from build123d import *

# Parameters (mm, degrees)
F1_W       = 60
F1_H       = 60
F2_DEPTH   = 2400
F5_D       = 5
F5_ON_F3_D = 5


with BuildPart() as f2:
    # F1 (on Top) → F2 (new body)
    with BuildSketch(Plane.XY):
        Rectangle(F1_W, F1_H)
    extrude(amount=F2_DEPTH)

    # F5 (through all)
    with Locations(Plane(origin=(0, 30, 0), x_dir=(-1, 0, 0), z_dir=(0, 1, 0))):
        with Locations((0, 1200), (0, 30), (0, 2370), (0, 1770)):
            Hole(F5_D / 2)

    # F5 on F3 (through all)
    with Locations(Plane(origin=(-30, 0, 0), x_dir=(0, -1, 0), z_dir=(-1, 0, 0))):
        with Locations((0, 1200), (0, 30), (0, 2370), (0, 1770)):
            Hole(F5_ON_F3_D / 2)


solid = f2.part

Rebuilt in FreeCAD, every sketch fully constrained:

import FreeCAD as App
import Part
import Sketcher

V = App.Vector


def add_polygon(sketch, points):
    """Adds a closed chain of lines whose ends are joined by coincident constraints."""
    first, n = sketch.GeometryCount, len(points)
    for a, b in zip(points, points[1:] + points[:1]):
        sketch.addGeometry(Part.LineSegment(App.Vector(*a, 0), App.Vector(*b, 0)), False)
    for i in range(n):
        sketch.addConstraint(Sketcher.Constraint("Coincident", first + i, 2, first + (i + 1) % n, 1))

doc = App.newDocument("Part")
body = doc.addObject("PartDesign::Body", "Body")

sketch1 = doc.addObject("Sketcher::SketchObject", "Sketch")
body.addObject(sketch1)
sketch1.AttachmentSupport = (doc.XY_Plane, [""])
sketch1.MapMode = "FlatFace"
add_polygon(sketch1, [(-30, 30), (-30, -30), (30, -30), (30, 30)])
sketch1.addConstraint(Sketcher.Constraint("Vertical", 0))
sketch1.addConstraint(Sketcher.Constraint("Horizontal", 1))
sketch1.addConstraint(Sketcher.Constraint("Vertical", 2))
sketch1.addConstraint(Sketcher.Constraint("Horizontal", 3))
sketch1.addConstraint(Sketcher.Constraint("Symmetric", 0, 2, 2, 2, -1, 1))
sketch1.addConstraint(Sketcher.Constraint("Equal", 3, 0))
sketch1.addConstraint(Sketcher.Constraint("DistanceX", 1, 1, 1, 2, 60.0))
pad1 = doc.addObject("PartDesign::Pad", "Pad")
body.addObject(pad1)
pad1.Profile = sketch1
pad1.Length = 2400

sketch2 = doc.addObject("Sketcher::SketchObject", "Sketch001")
body.addObject(sketch2)
sketch2.AttachmentSupport = (doc.XZ_Plane, [""])
sketch2.MapMode = "FlatFace"
sketch2.AttachmentOffset = App.Placement(V(0, 0, -30), App.Rotation())
sketch2.addGeometry(Part.Circle(V(0, 1200, 0), V(0, 0, 1), 2.5), False)
sketch2.addGeometry(Part.Circle(V(0, 30, 0), V(0, 0, 1), 2.5), False)
sketch2.addGeometry(Part.Circle(V(0, 2370, 0), V(0, 0, 1), 2.5), False)
sketch2.addGeometry(Part.Circle(V(0, 1770, 0), V(0, 0, 1), 2.5), False)
sketch2.addConstraint(Sketcher.Constraint("Equal", 0, 1))
sketch2.addConstraint(Sketcher.Constraint("Equal", 1, 2))
sketch2.addConstraint(Sketcher.Constraint("Equal", 2, 3))
sketch2.addConstraint(Sketcher.Constraint("PointOnObject", 0, 3, -2))
sketch2.addConstraint(Sketcher.Constraint("PointOnObject", 1, 3, -2))
sketch2.addConstraint(Sketcher.Constraint("PointOnObject", 2, 3, -2))
sketch2.addConstraint(Sketcher.Constraint("PointOnObject", 3, 3, -2))
sketch2.addConstraint(Sketcher.Constraint("Diameter", 0, 5.0))
sketch2.addConstraint(Sketcher.Constraint("DistanceY", -1, 1, 0, 3, 1200.0))
sketch2.addConstraint(Sketcher.Constraint("DistanceY", -1, 1, 1, 3, 30.0))
sketch2.addConstraint(Sketcher.Constraint("DistanceY", -1, 1, 2, 3, 2370.0))
sketch2.addConstraint(Sketcher.Constraint("DistanceY", -1, 1, 3, 3, 1770.0))
doc.recompute()
hole = doc.addObject("PartDesign::Hole", "Hole")
body.addObject(hole)
hole.Profile = sketch2
hole.ThreadType = "None"
hole.Diameter = 5
hole.DepthType = "ThroughAll"
hole.Reversed = True

sketch3 = doc.addObject("Sketcher::SketchObject", "Sketch002")
body.addObject(sketch3)
sketch3.AttachmentSupport = (doc.YZ_Plane, [""])
sketch3.MapMode = "FlatFace"
sketch3.AttachmentOffset = App.Placement(V(0, 0, -30), App.Rotation())
sketch3.addGeometry(Part.Circle(V(0, 1200, 0), V(0, 0, 1), 2.5), False)
sketch3.addGeometry(Part.Circle(V(0, 30, 0), V(0, 0, 1), 2.5), False)
sketch3.addGeometry(Part.Circle(V(0, 2370, 0), V(0, 0, 1), 2.5), False)
sketch3.addGeometry(Part.Circle(V(0, 1770, 0), V(0, 0, 1), 2.5), False)
sketch3.addConstraint(Sketcher.Constraint("Equal", 0, 1))
sketch3.addConstraint(Sketcher.Constraint("Equal", 1, 2))
sketch3.addConstraint(Sketcher.Constraint("Equal", 2, 3))
sketch3.addConstraint(Sketcher.Constraint("PointOnObject", 0, 3, -2))
sketch3.addConstraint(Sketcher.Constraint("PointOnObject", 1, 3, -2))
sketch3.addConstraint(Sketcher.Constraint("PointOnObject", 2, 3, -2))
sketch3.addConstraint(Sketcher.Constraint("PointOnObject", 3, 3, -2))
sketch3.addConstraint(Sketcher.Constraint("Diameter", 0, 5.0))
sketch3.addConstraint(Sketcher.Constraint("DistanceY", -1, 1, 0, 3, 1200.0))
sketch3.addConstraint(Sketcher.Constraint("DistanceY", -1, 1, 1, 3, 30.0))
sketch3.addConstraint(Sketcher.Constraint("DistanceY", -1, 1, 2, 3, 2370.0))
sketch3.addConstraint(Sketcher.Constraint("DistanceY", -1, 1, 3, 3, 1770.0))
doc.recompute()
hole2 = doc.addObject("PartDesign::Hole", "Hole001")
body.addObject(hole2)
hole2.Profile = sketch3
hole2.ThreadType = "None"
hole2.Diameter = 5
hole2.DepthType = "ThroughAll"
hole2.Reversed = True

doc.recompute()
